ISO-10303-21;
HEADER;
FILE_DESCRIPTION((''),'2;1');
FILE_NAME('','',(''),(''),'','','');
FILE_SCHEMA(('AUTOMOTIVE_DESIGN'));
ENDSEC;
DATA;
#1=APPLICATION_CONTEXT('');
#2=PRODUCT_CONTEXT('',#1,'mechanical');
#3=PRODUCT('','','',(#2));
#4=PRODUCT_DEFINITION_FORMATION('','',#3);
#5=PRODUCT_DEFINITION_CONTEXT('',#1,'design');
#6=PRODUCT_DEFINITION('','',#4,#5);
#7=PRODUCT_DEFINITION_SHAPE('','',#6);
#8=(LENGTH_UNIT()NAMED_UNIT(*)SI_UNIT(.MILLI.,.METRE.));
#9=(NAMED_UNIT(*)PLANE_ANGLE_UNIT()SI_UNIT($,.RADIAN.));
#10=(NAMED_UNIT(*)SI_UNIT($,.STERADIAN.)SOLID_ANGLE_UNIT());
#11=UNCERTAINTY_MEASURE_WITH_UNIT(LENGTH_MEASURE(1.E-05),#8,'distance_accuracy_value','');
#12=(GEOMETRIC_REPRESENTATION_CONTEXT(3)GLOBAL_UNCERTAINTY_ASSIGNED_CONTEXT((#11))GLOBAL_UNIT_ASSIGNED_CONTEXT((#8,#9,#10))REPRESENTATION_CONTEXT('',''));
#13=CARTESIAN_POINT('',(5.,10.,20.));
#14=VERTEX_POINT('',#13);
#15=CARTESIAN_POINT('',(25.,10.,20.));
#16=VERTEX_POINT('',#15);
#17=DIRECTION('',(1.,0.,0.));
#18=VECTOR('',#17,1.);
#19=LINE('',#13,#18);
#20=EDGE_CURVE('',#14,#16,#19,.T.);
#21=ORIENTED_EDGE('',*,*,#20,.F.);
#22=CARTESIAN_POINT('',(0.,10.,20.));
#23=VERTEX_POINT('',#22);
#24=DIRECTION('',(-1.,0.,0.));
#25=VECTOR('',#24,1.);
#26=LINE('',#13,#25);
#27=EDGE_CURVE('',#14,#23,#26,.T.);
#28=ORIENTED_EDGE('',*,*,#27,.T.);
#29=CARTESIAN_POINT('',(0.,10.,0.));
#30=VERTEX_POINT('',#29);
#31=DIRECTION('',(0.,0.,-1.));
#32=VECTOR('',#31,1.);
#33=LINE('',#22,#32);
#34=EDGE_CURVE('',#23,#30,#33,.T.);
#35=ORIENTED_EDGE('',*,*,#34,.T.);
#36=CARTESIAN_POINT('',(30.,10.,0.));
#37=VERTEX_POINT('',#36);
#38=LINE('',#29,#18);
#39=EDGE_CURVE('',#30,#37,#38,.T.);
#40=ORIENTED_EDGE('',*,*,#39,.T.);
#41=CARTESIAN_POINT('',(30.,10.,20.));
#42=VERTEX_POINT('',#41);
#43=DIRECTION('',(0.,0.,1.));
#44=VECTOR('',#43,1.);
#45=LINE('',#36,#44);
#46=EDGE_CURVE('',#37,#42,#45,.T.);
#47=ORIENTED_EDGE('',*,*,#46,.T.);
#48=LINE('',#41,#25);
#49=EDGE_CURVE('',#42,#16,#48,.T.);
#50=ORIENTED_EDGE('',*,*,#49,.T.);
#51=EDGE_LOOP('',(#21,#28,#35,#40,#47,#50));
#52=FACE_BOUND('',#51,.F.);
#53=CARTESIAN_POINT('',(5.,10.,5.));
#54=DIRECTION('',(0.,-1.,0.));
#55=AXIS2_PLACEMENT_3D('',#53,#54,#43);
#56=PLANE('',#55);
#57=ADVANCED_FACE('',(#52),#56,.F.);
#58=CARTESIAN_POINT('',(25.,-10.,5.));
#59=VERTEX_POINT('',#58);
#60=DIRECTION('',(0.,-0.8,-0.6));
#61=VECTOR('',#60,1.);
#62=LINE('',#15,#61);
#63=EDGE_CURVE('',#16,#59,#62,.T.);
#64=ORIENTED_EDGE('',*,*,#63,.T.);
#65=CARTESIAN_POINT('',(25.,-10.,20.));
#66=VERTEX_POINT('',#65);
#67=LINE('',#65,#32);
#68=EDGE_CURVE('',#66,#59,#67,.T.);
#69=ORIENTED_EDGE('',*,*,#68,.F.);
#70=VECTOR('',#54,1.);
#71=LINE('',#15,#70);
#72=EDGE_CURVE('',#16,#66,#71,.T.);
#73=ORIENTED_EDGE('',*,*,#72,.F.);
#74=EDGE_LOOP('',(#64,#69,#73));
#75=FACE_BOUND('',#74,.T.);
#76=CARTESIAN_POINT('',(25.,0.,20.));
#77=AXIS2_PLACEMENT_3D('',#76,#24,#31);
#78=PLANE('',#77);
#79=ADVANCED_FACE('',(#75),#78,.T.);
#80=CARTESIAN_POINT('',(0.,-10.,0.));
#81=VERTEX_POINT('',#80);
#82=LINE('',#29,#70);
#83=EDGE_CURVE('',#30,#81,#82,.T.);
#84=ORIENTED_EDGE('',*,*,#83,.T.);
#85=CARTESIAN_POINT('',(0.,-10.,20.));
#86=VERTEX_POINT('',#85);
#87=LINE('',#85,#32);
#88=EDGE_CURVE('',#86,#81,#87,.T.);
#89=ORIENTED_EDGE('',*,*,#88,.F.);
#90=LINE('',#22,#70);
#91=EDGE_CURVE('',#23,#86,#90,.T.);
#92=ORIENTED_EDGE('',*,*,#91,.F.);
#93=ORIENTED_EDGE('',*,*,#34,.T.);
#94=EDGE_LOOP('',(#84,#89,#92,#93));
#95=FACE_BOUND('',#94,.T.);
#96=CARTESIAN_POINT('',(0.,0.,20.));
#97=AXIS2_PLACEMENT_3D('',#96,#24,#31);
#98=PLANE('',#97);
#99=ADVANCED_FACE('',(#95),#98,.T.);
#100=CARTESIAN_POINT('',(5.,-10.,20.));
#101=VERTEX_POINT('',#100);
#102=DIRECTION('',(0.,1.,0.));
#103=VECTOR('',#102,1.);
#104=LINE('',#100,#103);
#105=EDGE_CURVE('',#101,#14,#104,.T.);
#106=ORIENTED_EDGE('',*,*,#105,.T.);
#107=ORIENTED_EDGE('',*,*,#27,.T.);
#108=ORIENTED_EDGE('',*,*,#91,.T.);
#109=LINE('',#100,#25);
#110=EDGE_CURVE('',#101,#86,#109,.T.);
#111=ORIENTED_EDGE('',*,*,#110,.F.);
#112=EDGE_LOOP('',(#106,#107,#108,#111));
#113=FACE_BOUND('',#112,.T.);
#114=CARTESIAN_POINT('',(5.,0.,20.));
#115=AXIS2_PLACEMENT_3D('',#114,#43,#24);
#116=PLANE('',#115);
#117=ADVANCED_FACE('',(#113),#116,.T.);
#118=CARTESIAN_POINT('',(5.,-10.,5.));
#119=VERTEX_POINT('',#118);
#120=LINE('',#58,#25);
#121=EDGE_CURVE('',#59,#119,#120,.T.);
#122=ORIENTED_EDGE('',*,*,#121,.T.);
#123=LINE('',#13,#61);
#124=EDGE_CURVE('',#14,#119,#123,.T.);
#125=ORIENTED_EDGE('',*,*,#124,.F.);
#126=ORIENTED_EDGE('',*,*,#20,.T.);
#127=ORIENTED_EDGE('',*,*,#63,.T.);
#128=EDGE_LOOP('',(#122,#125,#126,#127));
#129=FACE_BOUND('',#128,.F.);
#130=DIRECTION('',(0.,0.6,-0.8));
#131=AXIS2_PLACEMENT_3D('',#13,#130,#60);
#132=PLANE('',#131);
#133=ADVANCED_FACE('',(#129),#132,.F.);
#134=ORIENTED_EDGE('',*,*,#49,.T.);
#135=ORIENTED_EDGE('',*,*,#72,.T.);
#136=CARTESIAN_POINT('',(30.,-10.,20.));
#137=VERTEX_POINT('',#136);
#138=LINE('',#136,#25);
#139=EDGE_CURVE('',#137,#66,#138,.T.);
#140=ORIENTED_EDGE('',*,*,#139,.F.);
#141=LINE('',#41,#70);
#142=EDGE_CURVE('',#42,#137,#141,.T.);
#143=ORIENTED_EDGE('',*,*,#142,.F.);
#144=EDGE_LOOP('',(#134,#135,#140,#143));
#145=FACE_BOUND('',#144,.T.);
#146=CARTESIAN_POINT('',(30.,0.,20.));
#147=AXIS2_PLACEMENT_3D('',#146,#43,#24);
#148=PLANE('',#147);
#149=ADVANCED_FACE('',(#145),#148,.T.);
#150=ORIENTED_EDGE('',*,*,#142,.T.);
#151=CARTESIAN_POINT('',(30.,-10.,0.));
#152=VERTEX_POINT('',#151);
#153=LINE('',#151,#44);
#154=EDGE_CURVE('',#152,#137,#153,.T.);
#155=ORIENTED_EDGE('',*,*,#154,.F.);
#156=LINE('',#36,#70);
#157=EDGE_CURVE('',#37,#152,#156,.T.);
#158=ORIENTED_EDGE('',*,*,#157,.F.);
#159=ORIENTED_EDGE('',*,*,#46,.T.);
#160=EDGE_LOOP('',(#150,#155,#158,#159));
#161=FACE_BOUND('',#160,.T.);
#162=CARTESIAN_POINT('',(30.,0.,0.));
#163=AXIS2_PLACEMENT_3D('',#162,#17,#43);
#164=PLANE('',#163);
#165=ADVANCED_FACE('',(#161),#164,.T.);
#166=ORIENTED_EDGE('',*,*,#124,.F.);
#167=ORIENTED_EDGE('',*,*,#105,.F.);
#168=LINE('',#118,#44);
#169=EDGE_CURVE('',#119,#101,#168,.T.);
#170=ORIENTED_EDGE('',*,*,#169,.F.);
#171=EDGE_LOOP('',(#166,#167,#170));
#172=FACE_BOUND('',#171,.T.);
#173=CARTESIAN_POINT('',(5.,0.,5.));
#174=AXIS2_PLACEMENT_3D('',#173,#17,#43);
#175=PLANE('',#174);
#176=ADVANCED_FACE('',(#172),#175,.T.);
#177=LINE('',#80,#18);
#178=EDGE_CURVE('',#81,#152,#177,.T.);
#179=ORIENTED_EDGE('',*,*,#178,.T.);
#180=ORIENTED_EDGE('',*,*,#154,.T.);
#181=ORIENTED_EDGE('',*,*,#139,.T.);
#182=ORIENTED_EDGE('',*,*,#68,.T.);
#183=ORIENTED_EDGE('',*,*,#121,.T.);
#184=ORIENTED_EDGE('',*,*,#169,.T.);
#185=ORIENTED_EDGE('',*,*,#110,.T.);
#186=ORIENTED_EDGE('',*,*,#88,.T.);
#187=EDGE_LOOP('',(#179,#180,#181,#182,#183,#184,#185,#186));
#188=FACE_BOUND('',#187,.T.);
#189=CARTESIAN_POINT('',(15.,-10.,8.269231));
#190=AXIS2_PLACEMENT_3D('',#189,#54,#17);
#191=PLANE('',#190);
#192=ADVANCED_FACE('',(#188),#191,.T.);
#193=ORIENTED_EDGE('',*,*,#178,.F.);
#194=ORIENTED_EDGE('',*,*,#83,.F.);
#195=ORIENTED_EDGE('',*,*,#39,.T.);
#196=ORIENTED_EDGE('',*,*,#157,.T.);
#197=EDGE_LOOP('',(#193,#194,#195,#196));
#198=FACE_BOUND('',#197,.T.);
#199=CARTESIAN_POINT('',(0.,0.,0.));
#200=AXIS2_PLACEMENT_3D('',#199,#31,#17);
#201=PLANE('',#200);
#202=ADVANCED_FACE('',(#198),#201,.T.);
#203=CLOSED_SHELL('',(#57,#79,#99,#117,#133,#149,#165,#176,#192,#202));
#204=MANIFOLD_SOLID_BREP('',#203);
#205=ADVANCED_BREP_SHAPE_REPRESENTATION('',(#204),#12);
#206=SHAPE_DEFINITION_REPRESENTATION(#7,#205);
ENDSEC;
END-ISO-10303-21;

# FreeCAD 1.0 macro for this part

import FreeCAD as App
import Part
import Sketcher
Q = App.Units.Quantity


def add_polygon(sketch, points):
    """Adds a closed chain of lines whose ends are joined by coincident constraints."""
    first, n = sketch.GeometryCount, len(points)
    for a, b in zip(points, points[1:] + points[:1]):
        sketch.addGeometry(Part.LineSegment(App.Vector(*a, 0), App.Vector(*b, 0)), False)
    for i in range(n):
        sketch.addConstraint(Sketcher.Constraint("Coincident", first + i, 2, first + (i + 1) % n, 1))

doc = App.newDocument("Part")
body = doc.addObject("PartDesign::Body", "Body")

sketch1 = doc.addObject("Sketcher::SketchObject", "Sketch")
body.addObject(sketch1)
sketch1.AttachmentSupport = (doc.XZ_Plane, [""])
sketch1.MapMode = "FlatFace"
add_polygon(sketch1, [(5, 20), (0, 20), (0, 0), (30, 0), (30, 20), (25, 20), (25, 5), (5, 5)])
sketch1.addConstraint([
    Sketcher.Constraint("Horizontal", 0),
    Sketcher.Constraint("Vertical", 1),
    Sketcher.Constraint("Horizontal", 2),
    Sketcher.Constraint("Vertical", 3),
    Sketcher.Constraint("Horizontal", 4),
    Sketcher.Constraint("Vertical", 5),
    Sketcher.Constraint("Horizontal", 6),
    Sketcher.Constraint("Vertical", 7),
    Sketcher.Constraint("Coincident", 1, 2, -1, 1),
    Sketcher.Constraint("Horizontal", 0, 2, 3, 2),
    Sketcher.Constraint("Equal", 0, 4),
    Sketcher.Constraint("Equal", 6, 1),
    Sketcher.Constraint("DistanceX", 0, 2, 0, 1, Q("5 mm")),
    Sketcher.Constraint("DistanceX", 2, 1, 2, 2, Q("30 mm")),
    Sketcher.Constraint("DistanceY", 5, 2, 5, 1, Q("15 mm")),
])
pad1 = doc.addObject("PartDesign::Pad", "Pad")
body.addObject(pad1)
pad1.Profile = sketch1
pad1.Length = 20
pad1.Midplane = True

sketch2 = doc.addObject("Sketcher::SketchObject", "Sketch001")
body.addObject(sketch2)
sketch2.AttachmentSupport = (doc.YZ_Plane, [""])
sketch2.MapMode = "FlatFace"
sketch2.AttachmentOffset = App.Placement(App.Vector(0, 0, 5), App.Rotation())
add_polygon(sketch2, [(10, 5), (10, 20), (-10, 5)])
sketch2.addConstraint([
    Sketcher.Constraint("Vertical", 0),
    Sketcher.Constraint("Horizontal", 2),
    Sketcher.Constraint("DistanceX", 2, 1, 2, 2, Q("20 mm")),
    Sketcher.Constraint("DistanceY", 0, 1, 0, 2, Q("15 mm")),
    Sketcher.Constraint("DistanceX", -1, 1, 0, 2, Q("10 mm")),
    Sketcher.Constraint("DistanceY", -1, 1, 0, 2, Q("20 mm")),
])
pad2 = doc.addObject("PartDesign::Pad", "Pad001")
body.addObject(pad2)
pad2.Profile = sketch2
pad2.Type = "UpToLast"

doc.recompute()
